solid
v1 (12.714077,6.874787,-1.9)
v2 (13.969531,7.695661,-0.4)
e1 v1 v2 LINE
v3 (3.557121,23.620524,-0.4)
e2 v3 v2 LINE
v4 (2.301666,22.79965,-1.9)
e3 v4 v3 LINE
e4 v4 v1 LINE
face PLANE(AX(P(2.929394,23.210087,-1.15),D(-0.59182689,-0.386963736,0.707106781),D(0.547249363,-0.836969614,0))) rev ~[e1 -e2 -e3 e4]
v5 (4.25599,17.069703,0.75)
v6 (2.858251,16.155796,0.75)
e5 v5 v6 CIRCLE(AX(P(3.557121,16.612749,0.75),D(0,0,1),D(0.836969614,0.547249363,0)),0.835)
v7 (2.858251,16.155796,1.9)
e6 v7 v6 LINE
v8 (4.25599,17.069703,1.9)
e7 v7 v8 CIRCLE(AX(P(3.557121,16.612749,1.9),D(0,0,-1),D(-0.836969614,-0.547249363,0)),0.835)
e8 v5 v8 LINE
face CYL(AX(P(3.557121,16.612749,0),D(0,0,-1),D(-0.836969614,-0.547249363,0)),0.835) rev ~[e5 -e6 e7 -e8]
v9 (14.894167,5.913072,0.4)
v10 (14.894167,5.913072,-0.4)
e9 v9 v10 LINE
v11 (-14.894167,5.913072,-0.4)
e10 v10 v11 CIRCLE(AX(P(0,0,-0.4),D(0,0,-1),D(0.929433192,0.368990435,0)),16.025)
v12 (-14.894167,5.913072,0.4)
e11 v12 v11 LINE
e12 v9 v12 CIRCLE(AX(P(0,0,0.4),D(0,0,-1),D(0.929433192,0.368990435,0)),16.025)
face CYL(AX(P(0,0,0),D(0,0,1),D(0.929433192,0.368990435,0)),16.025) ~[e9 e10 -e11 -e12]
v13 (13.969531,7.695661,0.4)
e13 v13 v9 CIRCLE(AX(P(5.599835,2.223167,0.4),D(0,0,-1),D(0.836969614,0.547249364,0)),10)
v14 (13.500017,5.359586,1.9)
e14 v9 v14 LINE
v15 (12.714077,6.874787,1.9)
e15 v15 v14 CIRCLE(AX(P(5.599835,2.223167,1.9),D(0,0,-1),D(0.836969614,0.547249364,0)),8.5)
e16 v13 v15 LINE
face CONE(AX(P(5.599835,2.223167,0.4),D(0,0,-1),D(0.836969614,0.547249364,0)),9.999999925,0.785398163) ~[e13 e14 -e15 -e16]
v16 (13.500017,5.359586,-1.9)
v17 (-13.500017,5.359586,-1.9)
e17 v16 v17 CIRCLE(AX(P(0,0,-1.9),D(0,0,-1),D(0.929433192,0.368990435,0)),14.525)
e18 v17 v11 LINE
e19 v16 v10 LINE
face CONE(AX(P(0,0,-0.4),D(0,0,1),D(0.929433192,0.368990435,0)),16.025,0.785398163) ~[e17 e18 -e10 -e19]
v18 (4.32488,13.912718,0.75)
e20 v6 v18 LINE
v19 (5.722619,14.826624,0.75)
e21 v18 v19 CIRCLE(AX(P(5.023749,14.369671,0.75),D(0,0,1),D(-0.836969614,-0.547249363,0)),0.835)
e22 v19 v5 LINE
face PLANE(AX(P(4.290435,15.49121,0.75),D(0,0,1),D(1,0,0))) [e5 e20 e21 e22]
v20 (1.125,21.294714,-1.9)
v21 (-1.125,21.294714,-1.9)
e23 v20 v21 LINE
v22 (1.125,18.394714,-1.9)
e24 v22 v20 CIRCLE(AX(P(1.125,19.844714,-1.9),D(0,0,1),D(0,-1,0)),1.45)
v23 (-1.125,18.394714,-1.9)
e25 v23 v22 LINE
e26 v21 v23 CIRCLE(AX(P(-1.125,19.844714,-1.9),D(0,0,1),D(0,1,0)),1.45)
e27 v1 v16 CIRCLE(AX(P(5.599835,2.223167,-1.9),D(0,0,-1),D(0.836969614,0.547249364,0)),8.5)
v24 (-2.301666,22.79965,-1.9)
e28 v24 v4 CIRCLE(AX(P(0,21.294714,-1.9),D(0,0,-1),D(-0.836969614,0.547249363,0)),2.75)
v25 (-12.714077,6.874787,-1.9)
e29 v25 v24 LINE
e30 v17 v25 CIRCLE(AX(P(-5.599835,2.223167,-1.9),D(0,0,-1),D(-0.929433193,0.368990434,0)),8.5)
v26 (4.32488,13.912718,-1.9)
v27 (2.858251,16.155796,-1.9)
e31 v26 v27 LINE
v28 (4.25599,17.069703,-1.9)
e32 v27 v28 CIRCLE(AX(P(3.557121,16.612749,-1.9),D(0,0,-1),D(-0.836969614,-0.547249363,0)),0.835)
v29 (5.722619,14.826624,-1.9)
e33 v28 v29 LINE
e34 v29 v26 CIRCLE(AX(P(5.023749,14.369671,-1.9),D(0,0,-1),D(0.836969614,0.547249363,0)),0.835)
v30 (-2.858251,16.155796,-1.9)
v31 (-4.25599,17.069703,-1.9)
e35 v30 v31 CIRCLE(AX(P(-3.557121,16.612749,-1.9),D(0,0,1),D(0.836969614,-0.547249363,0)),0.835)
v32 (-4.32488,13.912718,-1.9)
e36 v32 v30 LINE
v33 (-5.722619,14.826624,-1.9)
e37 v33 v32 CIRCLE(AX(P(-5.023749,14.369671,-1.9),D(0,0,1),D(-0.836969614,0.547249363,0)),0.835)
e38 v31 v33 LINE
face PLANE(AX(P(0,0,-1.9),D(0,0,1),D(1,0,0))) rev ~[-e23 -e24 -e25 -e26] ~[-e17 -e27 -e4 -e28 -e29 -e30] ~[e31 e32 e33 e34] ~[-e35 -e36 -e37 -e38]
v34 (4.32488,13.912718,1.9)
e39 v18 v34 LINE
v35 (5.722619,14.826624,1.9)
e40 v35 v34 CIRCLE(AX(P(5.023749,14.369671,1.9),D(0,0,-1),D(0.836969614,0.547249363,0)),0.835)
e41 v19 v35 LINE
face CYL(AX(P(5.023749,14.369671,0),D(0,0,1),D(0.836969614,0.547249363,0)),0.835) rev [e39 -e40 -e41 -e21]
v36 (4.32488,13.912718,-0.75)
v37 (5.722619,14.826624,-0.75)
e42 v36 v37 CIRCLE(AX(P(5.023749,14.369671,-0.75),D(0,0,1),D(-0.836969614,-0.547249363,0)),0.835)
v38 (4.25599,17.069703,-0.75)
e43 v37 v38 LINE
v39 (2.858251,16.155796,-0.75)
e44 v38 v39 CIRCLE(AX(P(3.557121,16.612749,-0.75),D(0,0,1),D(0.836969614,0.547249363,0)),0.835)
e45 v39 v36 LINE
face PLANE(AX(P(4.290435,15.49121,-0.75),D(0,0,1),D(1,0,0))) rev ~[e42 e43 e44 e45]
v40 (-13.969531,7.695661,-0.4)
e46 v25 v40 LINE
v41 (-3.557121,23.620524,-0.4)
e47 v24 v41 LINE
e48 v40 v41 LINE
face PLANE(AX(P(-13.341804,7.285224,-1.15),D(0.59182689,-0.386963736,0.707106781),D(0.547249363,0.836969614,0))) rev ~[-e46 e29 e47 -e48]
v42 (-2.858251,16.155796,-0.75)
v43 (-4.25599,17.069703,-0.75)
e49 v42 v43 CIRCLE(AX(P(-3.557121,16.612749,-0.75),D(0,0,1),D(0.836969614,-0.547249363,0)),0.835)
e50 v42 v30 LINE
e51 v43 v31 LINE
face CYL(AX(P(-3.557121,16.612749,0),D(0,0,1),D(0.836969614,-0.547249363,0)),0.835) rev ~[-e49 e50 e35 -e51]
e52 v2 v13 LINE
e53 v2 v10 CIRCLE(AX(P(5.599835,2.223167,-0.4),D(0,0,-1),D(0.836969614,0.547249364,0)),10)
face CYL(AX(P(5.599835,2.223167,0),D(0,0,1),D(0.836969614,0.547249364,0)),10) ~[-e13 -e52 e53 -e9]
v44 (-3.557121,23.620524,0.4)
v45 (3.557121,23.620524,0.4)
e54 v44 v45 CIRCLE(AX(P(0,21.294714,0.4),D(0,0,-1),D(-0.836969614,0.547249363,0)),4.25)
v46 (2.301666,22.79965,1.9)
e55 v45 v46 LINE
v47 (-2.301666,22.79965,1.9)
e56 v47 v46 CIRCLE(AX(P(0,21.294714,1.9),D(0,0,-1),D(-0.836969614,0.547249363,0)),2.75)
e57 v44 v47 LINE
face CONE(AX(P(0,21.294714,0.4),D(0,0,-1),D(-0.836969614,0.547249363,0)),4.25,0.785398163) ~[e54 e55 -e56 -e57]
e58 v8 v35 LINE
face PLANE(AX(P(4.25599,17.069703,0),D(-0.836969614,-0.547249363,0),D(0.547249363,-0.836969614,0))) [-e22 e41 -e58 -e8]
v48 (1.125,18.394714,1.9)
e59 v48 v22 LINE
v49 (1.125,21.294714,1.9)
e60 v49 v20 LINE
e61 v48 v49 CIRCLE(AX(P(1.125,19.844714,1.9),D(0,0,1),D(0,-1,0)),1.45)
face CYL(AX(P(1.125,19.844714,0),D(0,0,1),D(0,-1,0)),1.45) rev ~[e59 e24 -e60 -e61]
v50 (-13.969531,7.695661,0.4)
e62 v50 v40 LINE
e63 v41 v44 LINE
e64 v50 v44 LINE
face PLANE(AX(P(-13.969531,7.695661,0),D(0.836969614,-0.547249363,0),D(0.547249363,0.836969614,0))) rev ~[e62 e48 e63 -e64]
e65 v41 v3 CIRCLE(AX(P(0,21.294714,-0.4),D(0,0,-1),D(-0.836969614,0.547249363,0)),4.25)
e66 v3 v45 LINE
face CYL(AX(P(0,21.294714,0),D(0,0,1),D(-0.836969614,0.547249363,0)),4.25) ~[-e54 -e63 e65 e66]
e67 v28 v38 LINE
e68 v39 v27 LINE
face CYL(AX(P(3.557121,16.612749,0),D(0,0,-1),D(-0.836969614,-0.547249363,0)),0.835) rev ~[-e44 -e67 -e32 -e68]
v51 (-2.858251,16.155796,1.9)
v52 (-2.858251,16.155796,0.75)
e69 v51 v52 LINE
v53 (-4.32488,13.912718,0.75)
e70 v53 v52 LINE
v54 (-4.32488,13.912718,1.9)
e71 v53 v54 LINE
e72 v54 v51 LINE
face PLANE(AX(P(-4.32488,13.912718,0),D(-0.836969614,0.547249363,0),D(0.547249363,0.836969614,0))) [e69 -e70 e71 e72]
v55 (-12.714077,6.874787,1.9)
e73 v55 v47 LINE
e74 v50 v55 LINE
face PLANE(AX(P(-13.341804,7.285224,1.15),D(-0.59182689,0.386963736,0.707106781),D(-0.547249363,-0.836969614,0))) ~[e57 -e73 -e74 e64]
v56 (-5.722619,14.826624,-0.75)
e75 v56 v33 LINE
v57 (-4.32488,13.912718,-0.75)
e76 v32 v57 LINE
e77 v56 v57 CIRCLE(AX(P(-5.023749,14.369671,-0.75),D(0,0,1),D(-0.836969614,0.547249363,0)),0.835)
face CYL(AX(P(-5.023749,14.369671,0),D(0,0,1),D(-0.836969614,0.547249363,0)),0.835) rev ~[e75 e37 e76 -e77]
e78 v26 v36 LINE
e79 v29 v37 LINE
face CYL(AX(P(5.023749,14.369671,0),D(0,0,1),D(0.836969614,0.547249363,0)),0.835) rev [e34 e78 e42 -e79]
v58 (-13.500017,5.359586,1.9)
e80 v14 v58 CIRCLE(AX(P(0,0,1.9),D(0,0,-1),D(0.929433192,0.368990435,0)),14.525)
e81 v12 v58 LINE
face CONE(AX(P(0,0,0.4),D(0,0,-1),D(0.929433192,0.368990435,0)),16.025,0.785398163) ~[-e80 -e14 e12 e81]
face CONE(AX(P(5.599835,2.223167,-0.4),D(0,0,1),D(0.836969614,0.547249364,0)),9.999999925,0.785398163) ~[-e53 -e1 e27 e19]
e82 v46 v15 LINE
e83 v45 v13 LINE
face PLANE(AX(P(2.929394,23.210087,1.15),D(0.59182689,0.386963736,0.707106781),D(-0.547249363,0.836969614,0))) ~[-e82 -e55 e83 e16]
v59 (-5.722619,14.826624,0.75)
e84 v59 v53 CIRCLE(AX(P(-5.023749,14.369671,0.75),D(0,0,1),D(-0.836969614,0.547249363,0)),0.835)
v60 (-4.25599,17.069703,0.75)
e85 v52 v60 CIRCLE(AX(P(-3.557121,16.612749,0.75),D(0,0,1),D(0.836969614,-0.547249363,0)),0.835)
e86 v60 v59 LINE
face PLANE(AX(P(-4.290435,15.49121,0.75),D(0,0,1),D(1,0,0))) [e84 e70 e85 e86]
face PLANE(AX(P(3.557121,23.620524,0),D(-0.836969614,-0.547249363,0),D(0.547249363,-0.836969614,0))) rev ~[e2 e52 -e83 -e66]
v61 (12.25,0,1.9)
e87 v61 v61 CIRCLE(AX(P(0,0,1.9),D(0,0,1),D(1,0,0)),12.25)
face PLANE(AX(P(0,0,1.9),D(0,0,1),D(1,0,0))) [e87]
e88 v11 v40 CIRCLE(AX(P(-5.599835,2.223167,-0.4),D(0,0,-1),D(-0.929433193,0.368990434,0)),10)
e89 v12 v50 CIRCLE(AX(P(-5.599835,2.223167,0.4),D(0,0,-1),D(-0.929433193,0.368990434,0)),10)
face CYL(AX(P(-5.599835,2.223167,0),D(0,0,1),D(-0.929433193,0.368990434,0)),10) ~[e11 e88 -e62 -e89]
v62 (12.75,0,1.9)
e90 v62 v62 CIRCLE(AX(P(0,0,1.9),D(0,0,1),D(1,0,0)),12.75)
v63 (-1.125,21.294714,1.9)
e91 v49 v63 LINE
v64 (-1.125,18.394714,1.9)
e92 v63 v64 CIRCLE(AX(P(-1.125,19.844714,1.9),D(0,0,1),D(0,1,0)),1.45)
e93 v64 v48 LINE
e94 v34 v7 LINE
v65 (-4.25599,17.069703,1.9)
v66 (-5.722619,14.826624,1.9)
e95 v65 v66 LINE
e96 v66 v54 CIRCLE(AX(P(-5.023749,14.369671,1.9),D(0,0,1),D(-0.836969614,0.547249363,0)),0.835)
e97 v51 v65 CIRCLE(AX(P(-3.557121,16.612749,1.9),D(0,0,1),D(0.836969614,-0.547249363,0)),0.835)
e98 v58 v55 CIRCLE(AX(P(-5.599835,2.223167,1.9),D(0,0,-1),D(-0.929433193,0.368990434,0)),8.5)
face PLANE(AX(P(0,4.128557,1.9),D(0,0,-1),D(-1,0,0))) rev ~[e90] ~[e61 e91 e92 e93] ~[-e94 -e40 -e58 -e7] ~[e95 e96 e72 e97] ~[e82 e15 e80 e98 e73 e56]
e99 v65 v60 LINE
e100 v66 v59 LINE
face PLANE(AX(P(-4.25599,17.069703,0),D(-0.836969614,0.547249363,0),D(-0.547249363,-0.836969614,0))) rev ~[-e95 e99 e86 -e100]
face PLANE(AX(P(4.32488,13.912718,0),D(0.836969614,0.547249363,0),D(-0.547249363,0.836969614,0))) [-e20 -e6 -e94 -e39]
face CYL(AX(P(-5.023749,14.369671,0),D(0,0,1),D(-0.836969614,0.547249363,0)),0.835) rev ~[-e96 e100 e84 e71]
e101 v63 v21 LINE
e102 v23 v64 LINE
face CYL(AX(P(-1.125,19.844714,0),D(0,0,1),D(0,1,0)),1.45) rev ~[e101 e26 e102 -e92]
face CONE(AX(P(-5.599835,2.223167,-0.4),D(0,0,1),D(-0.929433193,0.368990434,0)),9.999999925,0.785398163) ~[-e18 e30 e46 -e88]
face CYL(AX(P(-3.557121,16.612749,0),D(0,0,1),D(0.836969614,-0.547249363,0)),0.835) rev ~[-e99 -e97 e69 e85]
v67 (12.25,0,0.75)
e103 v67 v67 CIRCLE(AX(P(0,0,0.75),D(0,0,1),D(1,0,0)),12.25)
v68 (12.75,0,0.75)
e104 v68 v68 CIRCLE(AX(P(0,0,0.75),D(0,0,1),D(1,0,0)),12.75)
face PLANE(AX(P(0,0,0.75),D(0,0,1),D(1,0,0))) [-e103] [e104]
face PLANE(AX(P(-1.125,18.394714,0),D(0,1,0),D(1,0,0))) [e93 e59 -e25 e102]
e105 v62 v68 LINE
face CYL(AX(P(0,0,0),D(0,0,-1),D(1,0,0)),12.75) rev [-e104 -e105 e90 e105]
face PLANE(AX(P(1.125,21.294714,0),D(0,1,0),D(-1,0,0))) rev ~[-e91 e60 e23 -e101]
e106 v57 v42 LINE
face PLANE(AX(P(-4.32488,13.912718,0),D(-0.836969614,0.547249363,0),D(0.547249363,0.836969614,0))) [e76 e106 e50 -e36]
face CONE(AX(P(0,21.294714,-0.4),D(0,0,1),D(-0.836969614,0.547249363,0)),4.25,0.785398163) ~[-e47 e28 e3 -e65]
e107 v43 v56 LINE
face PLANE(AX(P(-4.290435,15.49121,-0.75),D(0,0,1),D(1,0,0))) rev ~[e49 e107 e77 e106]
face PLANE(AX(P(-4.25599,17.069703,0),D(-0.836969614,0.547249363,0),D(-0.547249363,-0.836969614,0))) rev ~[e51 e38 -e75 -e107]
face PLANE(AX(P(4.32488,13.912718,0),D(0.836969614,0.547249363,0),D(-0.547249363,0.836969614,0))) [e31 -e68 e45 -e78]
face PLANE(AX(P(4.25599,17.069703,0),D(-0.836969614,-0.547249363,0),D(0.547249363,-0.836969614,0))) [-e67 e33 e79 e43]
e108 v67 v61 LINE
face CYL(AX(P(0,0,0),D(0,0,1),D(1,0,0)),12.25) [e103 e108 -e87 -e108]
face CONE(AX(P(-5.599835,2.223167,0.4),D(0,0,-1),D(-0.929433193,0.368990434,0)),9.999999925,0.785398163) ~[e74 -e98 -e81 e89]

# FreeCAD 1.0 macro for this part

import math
import FreeCAD as App
import Part
import Sketcher

V = App.Vector


def edges_at(feature, points):
    """Names of the edges that pass closest to the given points."""
    edges = feature.Shape.Edges
    near = lambda p: min(range(len(edges)), key=lambda i: edges[i].distToShape(Part.Vertex(*p))[0])
    return sorted({f"Edge{near(p) + 1}" for p in points})

doc = App.newDocument("Part")
body = doc.addObject("PartDesign::Body", "Body")

# Sketch on XY plane
sketch1 = body.newObject("Sketcher::SketchObject", "Sketch")
sketch1.AttachmentSupport = (doc.getObject("XY_Plane"), [""])
sketch1.MapMode = "FlatFace"
sketch1.addGeometry([
    Part.ArcOfCircle(Part.Circle(V(5.599835, 2.223167, 0), V(0, 0, 1), 10), math.radians(21.653368), math.radians(33.178512)),  # 0
    Part.LineSegment(V(13.969531, 7.695661, 0), V(3.557121, 23.620524, 0)),  # 1
    Part.ArcOfCircle(Part.Circle(V(0, 21.294714, 0), V(0, 0, 1), 4.25), math.radians(33.178512), math.radians(146.821488)),  # 2
    Part.LineSegment(V(-3.557121, 23.620524, 0), V(-13.969531, 7.695661, 0)),  # 3
    Part.ArcOfCircle(Part.Circle(V(-5.599835, 2.223167, 0), V(0, 0, 1), 10), math.radians(146.821488), math.radians(158.346632)),  # 4
    Part.ArcOfCircle(Part.Circle(V(0, 0, 0), V(0, 0, 1), 16.025), math.radians(158.346632), math.radians(381.653368)),  # 5
    Part.Circle(V(0, 0, 0), V(0, 0, 1), 12.75),  # 6
    Part.LineSegment(V(4.25599, 17.069703, 0), V(5.722619, 14.826624, 0)),  # 7
    Part.ArcOfCircle(Part.Circle(V(5.023749, 14.369671, 0), V(0, 0, 1), 0.835), math.radians(-146.821488), math.radians(33.178512)),  # 8
    Part.LineSegment(V(4.32488, 13.912718, 0), V(2.858251, 16.155796, 0)),  # 9
    Part.ArcOfCircle(Part.Circle(V(3.557121, 16.612749, 0), V(0, 0, 1), 0.835), math.radians(33.178512), math.radians(213.178512)),  # 10
    Part.LineSegment(V(-5.722619, 14.826624, 0), V(-4.25599, 17.069703, 0)),  # 11
    Part.ArcOfCircle(Part.Circle(V(-3.557121, 16.612749, 0), V(0, 0, 1), 0.835), math.radians(-33.178512), math.radians(146.821488)),  # 12
    Part.LineSegment(V(-2.858251, 16.155796, 0), V(-4.32488, 13.912718, 0)),  # 13
    Part.ArcOfCircle(Part.Circle(V(-5.023749, 14.369671, 0), V(0, 0, 1), 0.835), math.radians(146.821488), math.radians(326.821488)),  # 14
    Part.LineSegment(V(-1.125, 21.294714, 0), V(1.125, 21.294714, 0)),  # 15
    Part.ArcOfCircle(Part.Circle(V(1.125, 19.844714, 0), V(0, 0, 1), 1.45), math.radians(-90), math.radians(90)),  # 16
    Part.LineSegment(V(1.125, 18.394714, 0), V(-1.125, 18.394714, 0)),  # 17
    Part.ArcOfCircle(Part.Circle(V(-1.125, 19.844714, 0), V(0, 0, 1), 1.45), math.radians(90), math.radians(270)),  # 18
], False)
sketch1.addConstraint([
    Sketcher.Constraint("Tangent", 0, 2, 1, 1),
    Sketcher.Constraint("Tangent", 1, 2, 2, 1),
    Sketcher.Constraint("Tangent", 2, 2, 3, 1),
    Sketcher.Constraint("Tangent", 3, 2, 4, 1),
    Sketcher.Constraint("Tangent", 4, 2, 5, 1),
    Sketcher.Constraint("Tangent", 5, 2, 0, 1),
    Sketcher.Constraint("Tangent", 7, 2, 8, 2),
    Sketcher.Constraint("Tangent", 8, 1, 9, 1),
    Sketcher.Constraint("Tangent", 9, 2, 10, 2),
    Sketcher.Constraint("Tangent", 10, 1, 7, 1),
    Sketcher.Constraint("Tangent", 11, 2, 12, 2),
    Sketcher.Constraint("Tangent", 12, 1, 13, 1),
    Sketcher.Constraint("Tangent", 13, 2, 14, 2),
    Sketcher.Constraint("Tangent", 14, 1, 11, 1),
    Sketcher.Constraint("Tangent", 15, 2, 16, 2),
    Sketcher.Constraint("Tangent", 16, 1, 17, 1),
    Sketcher.Constraint("Tangent", 17, 2, 18, 2),
    Sketcher.Constraint("Tangent", 18, 1, 15, 1),
    Sketcher.Constraint("Horizontal", 15),
    Sketcher.Constraint("Horizontal", 17),
    Sketcher.Constraint("Coincident", 5, 3, -1, 1),
    Sketcher.Constraint("Coincident", 6, 3, -1, 1),
    Sketcher.Constraint("Equal", 0, 4),
    Sketcher.Constraint("Equal", 8, 10),
    Sketcher.Constraint("Equal", 10, 12),
    Sketcher.Constraint("Equal", 12, 14),
    Sketcher.Constraint("Symmetric", 10, 3, 12, 3, -2),
    Sketcher.Constraint("Symmetric", 8, 3, 14, 3, -2),
    Sketcher.Constraint("Symmetric", 1, 2, 2, 2, -2),
    Sketcher.Constraint("Parallel", 1, 7),
    Sketcher.Constraint("Horizontal", 2, 3, 15, 2),
    Sketcher.Constraint("Vertical", 10, 3, 1, 2),
    Sketcher.Constraint("Radius", 0, 10.0),
    Sketcher.Constraint("Diameter", 6, 25.5),
    Sketcher.Constraint("Radius", 2, 4.25),
    Sketcher.Constraint("Radius", 16, 1.45),
    Sketcher.Constraint("Radius", 5, 16.025),
    Sketcher.Constraint("Radius", 8, 0.835),
    Sketcher.Constraint("DistanceX", 15, 1, 15, 2, 2.25),
    Sketcher.Constraint("Distance", 7, 2.68),
    Sketcher.Constraint("DistanceX", -1, 1, 16, 3, 1.125),
    Sketcher.Constraint("DistanceY", 4, 2, 14, 3, 8.456599),
    Sketcher.Constraint("Distance", 1, 19.026811),
    Sketcher.Constraint("DistanceY", -1, 1, 8, 3, 14.369671),
])
pad1 = body.newObject("PartDesign::Pad", "Pad")
pad1.Profile = sketch1
pad1.Length = 3.8
pad1.Midplane = True
body2 = doc.addObject("PartDesign::Body", "Body001")

# Sketch on XY plane
sketch2 = body2.newObject("Sketcher::SketchObject", "Sketch001")
sketch2.AttachmentSupport = (doc.getObject("XY_Plane001"), [""])
sketch2.MapMode = "FlatFace"
sketch2.addGeometry(Part.Circle(V(0, 0, 0), V(0, 0, 1), 12.25), False)
sketch2.addConstraint([
    Sketcher.Constraint("Coincident", 0, 3, -1, 1),
    Sketcher.Constraint("Diameter", 0, 24.5),
])
pad2 = body2.newObject("PartDesign::Pad", "Pad001")
pad2.Profile = sketch2
pad2.Length = 3.8
pad2.Midplane = True
body.AllowCompound = True
doc.recompute()

boolean = body.newObject("PartDesign::Boolean", "Boolean")
boolean.Type = "Fuse"
boolean.addObjects([body2])

# Sketch on XY plane
sketch3 = body.newObject("Sketcher::SketchObject", "Sketch002")
sketch3.AttachmentSupport = (doc.getObject("XY_Plane"), [""])
sketch3.MapMode = "FlatFace"
sketch3.addGeometry([
    Part.LineSegment(V(-4.25599, 17.069703, 0), V(-5.722619, 14.826624, 0)),  # 0
    Part.ArcOfCircle(Part.Circle(V(-5.023749, 14.369671, 0), V(0, 0, 1), 0.835), math.radians(146.821488), math.radians(326.821488)),  # 1
    Part.LineSegment(V(-4.32488, 13.912718, 0), V(-2.858251, 16.155796, 0)),  # 2
    Part.ArcOfCircle(Part.Circle(V(-3.557121, 16.612749, 0), V(0, 0, 1), 0.835), math.radians(-33.178512), math.radians(146.821488)),  # 3
    Part.Circle(V(0, 0, 0), V(0, 0, 1), 12.75),  # 4
    Part.Circle(V(0, 0, 0), V(0, 0, 1), 12.25),  # 5
    Part.LineSegment(V(2.858251, 16.155796, 0), V(4.32488, 13.912718, 0)),  # 6
    Part.ArcOfCircle(Part.Circle(V(5.023749, 14.369671, 0), V(0, 0, 1), 0.835), math.radians(-146.821488), math.radians(33.178512)),  # 7
    Part.LineSegment(V(5.722619, 14.826624, 0), V(4.25599, 17.069703, 0)),  # 8
    Part.ArcOfCircle(Part.Circle(V(3.557121, 16.612749, 0), V(0, 0, 1), 0.835), math.radians(33.178512), math.radians(213.178512)),  # 9
], False)
sketch3.addConstraint([
    Sketcher.Constraint("Tangent", 0, 2, 1, 1),
    Sketcher.Constraint("Tangent", 1, 2, 2, 1),
    Sketcher.Constraint("Tangent", 2, 2, 3, 1),
    Sketcher.Constraint("Tangent", 3, 2, 0, 1),
    Sketcher.Constraint("Tangent", 6, 2, 7, 1),
    Sketcher.Constraint("Tangent", 7, 2, 8, 1),
    Sketcher.Constraint("Tangent", 8, 2, 9, 1),
    Sketcher.Constraint("Tangent", 9, 2, 6, 1),
    Sketcher.Constraint("Coincident", 4, 3, -1, 1),
    Sketcher.Constraint("Coincident", 5, 3, -1, 1),
    Sketcher.Constraint("Equal", 1, 3),
    Sketcher.Constraint("Equal", 3, 7),
    Sketcher.Constraint("Equal", 7, 9),
    Sketcher.Constraint("Symmetric", 1, 3, 7, 3, -2),
    Sketcher.Constraint("Symmetric", 3, 3, 9, 3, -2),
    Sketcher.Constraint("Diameter", 4, 25.5),
    Sketcher.Constraint("Diameter", 5, 24.5),
    Sketcher.Constraint("Radius", 1, 0.835),
    Sketcher.Constraint("Distance", 0, 2.68),
    Sketcher.Constraint("DistanceX", 1, 2, 9, 3, 7.882),
    Sketcher.Constraint("DistanceX", 1, 3, 7, 3, 10.047498),
    Sketcher.Constraint("DistanceY", -1, 1, 1, 3, 14.369671),
])
pad3 = body.newObject("PartDesign::Pad", "Pad002")
pad3.Profile = sketch3
pad3.Length = 1.5
pad3.Midplane = True
doc.recompute()

chamfer = body.newObject("PartDesign::Chamfer", "Chamfer")
chamfer.Base = (pad3, edges_at(pad3, [
    (8.763, 15.658, 1.9),
    (0, 25.545, 1.9),
    (-8.763, 15.658, 1.9),
    (-14.477, 6.828, 1.9),
    (0, -16.025, -1.9),
    (-14.477, 6.828, -1.9),
    (-8.763, 15.658, -1.9),
    (0, -16.025, 1.9),
    (0, 25.545, -1.9),
    (8.763, 15.658, -1.9),
    (14.477, 6.828, -1.9),
    (14.477, 6.828, 1.9),
]))
chamfer.Size = 1.5

# Sketch on XY plane
sketch4 = body.newObject("Sketcher::SketchObject", "Sketch003")
sketch4.AttachmentSupport = (doc.getObject("XY_Plane"), [""])
sketch4.MapMode = "FlatFace"
sketch4.addGeometry([
    Part.Circle(V(0, 0, 0), V(0, 0, 1), 12.75),
    Part.Circle(V(0, 0, 0), V(0, 0, 1), 12.25),
], False)
sketch4.addConstraint([
    Sketcher.Constraint("Coincident", 0, 3, -1, 1),
    Sketcher.Constraint("Coincident", 1, 3, -1, 1),
    Sketcher.Constraint("Diameter", 0, 25.5),
    Sketcher.Constraint("Diameter", 1, 24.5),
])
pad4 = body.newObject("PartDesign::Pad", "Pad003")
pad4.Profile = sketch4
pad4.Length = 1.9
pad4.Reversed = True

doc.recompute()
